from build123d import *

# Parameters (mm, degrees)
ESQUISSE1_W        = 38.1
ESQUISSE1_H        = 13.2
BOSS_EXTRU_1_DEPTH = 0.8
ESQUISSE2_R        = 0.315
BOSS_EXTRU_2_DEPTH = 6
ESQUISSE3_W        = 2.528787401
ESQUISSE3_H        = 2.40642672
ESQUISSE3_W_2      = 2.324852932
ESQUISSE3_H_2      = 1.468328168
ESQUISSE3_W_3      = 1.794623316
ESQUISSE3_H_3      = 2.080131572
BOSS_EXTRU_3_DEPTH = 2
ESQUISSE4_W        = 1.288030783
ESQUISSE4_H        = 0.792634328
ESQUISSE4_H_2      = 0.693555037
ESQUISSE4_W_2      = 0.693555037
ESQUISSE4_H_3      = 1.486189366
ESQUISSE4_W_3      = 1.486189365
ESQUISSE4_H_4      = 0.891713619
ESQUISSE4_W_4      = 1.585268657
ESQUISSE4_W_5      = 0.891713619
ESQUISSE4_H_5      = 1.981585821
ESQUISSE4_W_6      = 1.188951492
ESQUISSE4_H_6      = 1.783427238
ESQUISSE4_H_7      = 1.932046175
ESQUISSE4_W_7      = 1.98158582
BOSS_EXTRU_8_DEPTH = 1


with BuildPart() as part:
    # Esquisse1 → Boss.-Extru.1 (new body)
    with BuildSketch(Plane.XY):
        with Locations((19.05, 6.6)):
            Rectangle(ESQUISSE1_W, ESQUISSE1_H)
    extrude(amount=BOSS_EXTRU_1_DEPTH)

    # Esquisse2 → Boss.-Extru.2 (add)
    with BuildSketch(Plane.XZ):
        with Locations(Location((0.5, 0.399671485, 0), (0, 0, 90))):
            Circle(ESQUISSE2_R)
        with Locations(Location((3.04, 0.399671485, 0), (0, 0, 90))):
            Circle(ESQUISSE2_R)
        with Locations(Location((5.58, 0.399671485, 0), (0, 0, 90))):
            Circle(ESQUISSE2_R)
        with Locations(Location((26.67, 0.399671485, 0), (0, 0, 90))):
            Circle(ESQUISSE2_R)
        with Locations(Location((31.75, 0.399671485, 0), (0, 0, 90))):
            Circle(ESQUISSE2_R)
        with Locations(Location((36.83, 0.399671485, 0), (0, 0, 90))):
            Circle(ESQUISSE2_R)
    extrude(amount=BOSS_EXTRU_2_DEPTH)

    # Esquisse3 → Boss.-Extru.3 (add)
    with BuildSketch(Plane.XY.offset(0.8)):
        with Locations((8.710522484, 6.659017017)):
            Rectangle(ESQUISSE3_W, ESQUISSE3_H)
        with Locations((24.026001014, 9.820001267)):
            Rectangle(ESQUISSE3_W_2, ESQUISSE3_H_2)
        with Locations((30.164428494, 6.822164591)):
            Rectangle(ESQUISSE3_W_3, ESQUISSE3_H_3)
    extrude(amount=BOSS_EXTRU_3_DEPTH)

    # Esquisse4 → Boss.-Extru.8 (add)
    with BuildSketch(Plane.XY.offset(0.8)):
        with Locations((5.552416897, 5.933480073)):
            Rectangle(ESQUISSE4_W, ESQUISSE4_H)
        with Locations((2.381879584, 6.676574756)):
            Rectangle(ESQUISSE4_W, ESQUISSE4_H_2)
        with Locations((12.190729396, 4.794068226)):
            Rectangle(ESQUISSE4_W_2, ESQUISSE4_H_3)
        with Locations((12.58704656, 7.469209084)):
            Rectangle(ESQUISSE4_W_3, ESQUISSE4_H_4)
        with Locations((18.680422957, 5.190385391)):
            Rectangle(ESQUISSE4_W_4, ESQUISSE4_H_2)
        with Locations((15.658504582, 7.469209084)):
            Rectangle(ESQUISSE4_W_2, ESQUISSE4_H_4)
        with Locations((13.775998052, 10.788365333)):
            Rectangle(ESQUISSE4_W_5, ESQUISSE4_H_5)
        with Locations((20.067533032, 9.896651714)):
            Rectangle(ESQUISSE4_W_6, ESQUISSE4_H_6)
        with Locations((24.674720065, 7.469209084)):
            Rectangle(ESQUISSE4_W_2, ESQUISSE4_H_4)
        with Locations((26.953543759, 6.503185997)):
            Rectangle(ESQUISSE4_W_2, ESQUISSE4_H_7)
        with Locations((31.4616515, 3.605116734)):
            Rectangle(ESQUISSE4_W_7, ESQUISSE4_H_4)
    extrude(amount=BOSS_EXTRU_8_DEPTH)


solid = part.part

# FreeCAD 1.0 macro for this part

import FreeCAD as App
import Part
import Sketcher

V = App.Vector

doc = App.newDocument("Part")
body = doc.addObject("PartDesign::Body", "Body")

sketch1 = body.newObject("Sketcher::SketchObject", "Sketch")
sketch1.AttachmentSupport = (doc.getObject("XY_Plane"), [""])
sketch1.MapMode = "FlatFace"
sketch1.addGeometry([
    Part.LineSegment(V(0, 13.2, 0), V(0, 0, 0)),
    Part.LineSegment(V(0, 0, 0), V(38.1, 0, 0)),
    Part.LineSegment(V(38.1, 0, 0), V(38.1, 13.2, 0)),
    Part.LineSegment(V(38.1, 13.2, 0), V(0, 13.2, 0)),
], False)
sketch1.addConstraint([
    Sketcher.Constraint("Coincident", 0, 2, 1, 1),
    Sketcher.Constraint("Coincident", 1, 2, 2, 1),
    Sketcher.Constraint("Coincident", 2, 2, 3, 1),
    Sketcher.Constraint("Coincident", 3, 2, 0, 1),
    Sketcher.Constraint("Vertical", 0),
    Sketcher.Constraint("Horizontal", 1),
    Sketcher.Constraint("Vertical", 2),
    Sketcher.Constraint("Horizontal", 3),
    Sketcher.Constraint("Coincident", 0, 2, -1, 1),
    Sketcher.Constraint("DistanceX", 1, 1, 1, 2, 38.1),
    Sketcher.Constraint("DistanceY", 0, 2, 0, 1, 13.2),
])
pad1 = body.newObject("PartDesign::Pad", "Pad")
pad1.Profile = sketch1
pad1.Length = 0.8

sketch2 = body.newObject("Sketcher::SketchObject", "Sketch001")
sketch2.AttachmentSupport = (doc.getObject("XZ_Plane"), [""])
sketch2.MapMode = "FlatFace"
sketch2.addGeometry([
    Part.Circle(V(0.5, 0.399671, 0), V(0, 0, 1), 0.315),
    Part.Circle(V(3.04, 0.399671, 0), V(0, 0, 1), 0.315),
    Part.Circle(V(5.58, 0.399671, 0), V(0, 0, 1), 0.315),
    Part.Circle(V(26.67, 0.399671, 0), V(0, 0, 1), 0.315),
    Part.Circle(V(31.75, 0.399671, 0), V(0, 0, 1), 0.315),
    Part.Circle(V(36.83, 0.399671, 0), V(0, 0, 1), 0.315),
], False)
sketch2.addConstraint([
    Sketcher.Constraint("Equal", 0, 1),
    Sketcher.Constraint("Equal", 1, 2),
    Sketcher.Constraint("Equal", 2, 3),
    Sketcher.Constraint("Equal", 3, 4),
    Sketcher.Constraint("Equal", 4, 5),
    Sketcher.Constraint("Horizontal", 0, 3, 1, 3),
    Sketcher.Constraint("Horizontal", 1, 3, 2, 3),
    Sketcher.Constraint("Horizontal", 2, 3, 3, 3),
    Sketcher.Constraint("Horizontal", 3, 3, 4, 3),
    Sketcher.Constraint("Horizontal", 4, 3, 5, 3),
    Sketcher.Constraint("Diameter", 0, 0.63),
    Sketcher.Constraint("DistanceX", -1, 1, 0, 3, 0.5),
    Sketcher.Constraint("DistanceX", -1, 1, 1, 3, 3.04),
    Sketcher.Constraint("DistanceX", -1, 1, 2, 3, 5.58),
    Sketcher.Constraint("DistanceX", -1, 1, 3, 3, 26.67),
    Sketcher.Constraint("DistanceX", -1, 1, 4, 3, 31.75),
    Sketcher.Constraint("DistanceX", -1, 1, 5, 3, 36.83),
    Sketcher.Constraint("DistanceY", -1, 1, 0, 3, 0.399671),
])
pad2 = body.newObject("PartDesign::Pad", "Pad001")
pad2.Profile = sketch2
pad2.Length = 6

sketch3 = body.newObject("Sketcher::SketchObject", "Sketch002")
sketch3.AttachmentSupport = (doc.getObject("XY_Plane"), [""])
sketch3.MapMode = "FlatFace"
sketch3.AttachmentOffset = App.Placement(V(0, 0, 0.8), App.Rotation())
sketch3.addGeometry([
    Part.LineSegment(V(7.446129, 7.86223, 0), V(7.446129, 5.455804, 0)),
    Part.LineSegment(V(7.446129, 5.455804, 0), V(9.974916, 5.455804, 0)),
    Part.LineSegment(V(9.974916, 5.455804, 0), V(9.974916, 7.86223, 0)),
    Part.LineSegment(V(9.974916, 7.86223, 0), V(7.446129, 7.86223, 0)),
    Part.LineSegment(V(22.863575, 10.554165, 0), V(22.863575, 9.085837, 0)),
    Part.LineSegment(V(22.863575, 9.085837, 0), V(25.188427, 9.085837, 0)),
    Part.LineSegment(V(25.188427, 9.085837, 0), V(25.188427, 10.554165, 0)),
    Part.LineSegment(V(25.188427, 10.554165, 0), V(22.863575, 10.554165, 0)),
    Part.LineSegment(V(29.267117, 7.86223, 0), V(29.267117, 5.782099, 0)),
    Part.LineSegment(V(29.267117, 5.782099, 0), V(31.06174, 5.782099, 0)),
    Part.LineSegment(V(31.06174, 5.782099, 0), V(31.06174, 7.86223, 0)),
    Part.LineSegment(V(31.06174, 7.86223, 0), V(29.267117, 7.86223, 0)),
], False)
sketch3.addConstraint([
    Sketcher.Constraint("Coincident", 0, 2, 1, 1),
    Sketcher.Constraint("Coincident", 1, 2, 2, 1),
    Sketcher.Constraint("Coincident", 2, 2, 3, 1),
    Sketcher.Constraint("Coincident", 3, 2, 0, 1),
    Sketcher.Constraint("Coincident", 4, 2, 5, 1),
    Sketcher.Constraint("Coincident", 5, 2, 6, 1),
    Sketcher.Constraint("Coincident", 6, 2, 7, 1),
    Sketcher.Constraint("Coincident", 7, 2, 4, 1),
    Sketcher.Constraint("Coincident", 8, 2, 9, 1),
    Sketcher.Constraint("Coincident", 9, 2, 10, 1),
    Sketcher.Constraint("Coincident", 10, 2, 11, 1),
    Sketcher.Constraint("Coincident", 11, 2, 8, 1),
    Sketcher.Constraint("Vertical", 0),
    Sketcher.Constraint("Horizontal", 1),
    Sketcher.Constraint("Vertical", 2),
    Sketcher.Constraint("Horizontal", 3),
    Sketcher.Constraint("Vertical", 4),
    Sketcher.Constraint("Horizontal", 5),
    Sketcher.Constraint("Vertical", 6),
    Sketcher.Constraint("Horizontal", 7),
    Sketcher.Constraint("Vertical", 8),
    Sketcher.Constraint("Horizontal", 9),
    Sketcher.Constraint("Vertical", 10),
    Sketcher.Constraint("Horizontal", 11),
    Sketcher.Constraint("Horizontal", 3, 2, 10, 2),
    Sketcher.Constraint("DistanceY", 4, 2, 4, 1, 1.468328),
    Sketcher.Constraint("DistanceY", 8, 2, 8, 1, 2.080132),
    Sketcher.Constraint("DistanceY", -1, 1, 8, 2, 5.782099),
    Sketcher.Constraint("DistanceX", 3, 2, 5, 2, 17.742299),
    Sketcher.Constraint("DistanceX", 1, 2, 8, 2, 19.292201),
    Sketcher.Constraint("DistanceX", 1, 1, 1, 2, 2.528787),
    Sketcher.Constraint("DistanceX", 5, 1, 5, 2, 2.324853),
    Sketcher.Constraint("DistanceX", 9, 1, 9, 2, 1.794623),
    Sketcher.Constraint("DistanceY", 0, 2, 0, 1, 2.406427),
    Sketcher.Constraint("DistanceX", -1, 1, 0, 2, 7.446129),
    Sketcher.Constraint("DistanceY", 1, 2, 6, 2, 5.098362),
])
pad3 = body.newObject("PartDesign::Pad", "Pad002")
pad3.Profile = sketch3
pad3.Length = 2

sketch4 = body.newObject("Sketcher::SketchObject", "Sketch003")
sketch4.AttachmentSupport = (doc.getObject("XY_Plane"), [""])
sketch4.MapMode = "FlatFace"
sketch4.AttachmentOffset = App.Placement(V(0, 0, 0.8), App.Rotation())
sketch4.addGeometry([
    Part.LineSegment(V(4.908402, 6.329797, 0), V(4.908402, 5.537163, 0)),
    Part.LineSegment(V(4.908402, 5.537163, 0), V(6.196432, 5.537163, 0)),
    Part.LineSegment(V(6.196432, 5.537163, 0), V(6.196432, 6.329797, 0)),
    Part.LineSegment(V(6.196432, 6.329797, 0), V(4.908402, 6.329797, 0)),
    Part.LineSegment(V(1.737864, 7.023352, 0), V(1.737864, 6.329797, 0)),
    Part.LineSegment(V(1.737864, 6.329797, 0), V(3.025895, 6.329797, 0)),
    Part.LineSegment(V(3.025895, 6.329797, 0), V(3.025895, 7.023352, 0)),
    Part.LineSegment(V(3.025895, 7.023352, 0), V(1.737864, 7.023352, 0)),
    Part.LineSegment(V(11.843952, 5.537163, 0), V(11.843952, 4.050974, 0)),
    Part.LineSegment(V(11.843952, 4.050974, 0), V(12.537507, 4.050974, 0)),
    Part.LineSegment(V(12.537507, 4.050974, 0), V(12.537507, 5.537163, 0)),
    Part.LineSegment(V(12.537507, 5.537163, 0), V(11.843952, 5.537163, 0)),
    Part.LineSegment(V(11.843952, 7.915066, 0), V(11.843952, 7.023352, 0)),
    Part.LineSegment(V(11.843952, 7.023352, 0), V(13.330141, 7.023352, 0)),
    Part.LineSegment(V(13.330141, 7.023352, 0), V(13.330141, 7.915066, 0)),
    Part.LineSegment(V(13.330141, 7.915066, 0), V(11.843952, 7.915066, 0)),
    Part.LineSegment(V(17.887789, 5.537163, 0), V(17.887789, 4.843608, 0)),
    Part.LineSegment(V(17.887789, 4.843608, 0), V(19.473057, 4.843608, 0)),
    Part.LineSegment(V(19.473057, 4.843608, 0), V(19.473057, 5.537163, 0)),
    Part.LineSegment(V(19.473057, 5.537163, 0), V(17.887789, 5.537163, 0)),
    Part.LineSegment(V(15.311727, 7.915066, 0), V(15.311727, 7.023352, 0)),
    Part.LineSegment(V(15.311727, 7.023352, 0), V(16.005282, 7.023352, 0)),
    Part.LineSegment(V(16.005282, 7.023352, 0), V(16.005282, 7.915066, 0)),
    Part.LineSegment(V(16.005282, 7.915066, 0), V(15.311727, 7.915066, 0)),
    Part.LineSegment(V(13.330141, 11.779158, 0), V(13.330141, 9.797572, 0)),
    Part.LineSegment(V(13.330141, 9.797572, 0), V(14.221855, 9.797572, 0)),
    Part.LineSegment(V(14.221855, 9.797572, 0), V(14.221855, 11.779158, 0)),
    Part.LineSegment(V(14.221855, 11.779158, 0), V(13.330141, 11.779158, 0)),
    Part.LineSegment(V(19.473057, 10.788365, 0), V(19.473057, 9.004938, 0)),
    Part.LineSegment(V(19.473057, 9.004938, 0), V(20.662009, 9.004938, 0)),
    Part.LineSegment(V(20.662009, 9.004938, 0), V(20.662009, 10.788365, 0)),
    Part.LineSegment(V(20.662009, 10.788365, 0), V(19.473057, 10.788365, 0)),
    Part.LineSegment(V(24.327943, 7.915066, 0), V(24.327943, 7.023352, 0)),
    Part.LineSegment(V(24.327943, 7.023352, 0), V(25.021498, 7.023352, 0)),
    Part.LineSegment(V(25.021498, 7.023352, 0), V(25.021498, 7.915066, 0)),
    Part.LineSegment(V(25.021498, 7.915066, 0), V(24.327943, 7.915066, 0)),
    Part.LineSegment(V(26.606766, 7.469209, 0), V(26.606766, 5.537163, 0)),
    Part.LineSegment(V(26.606766, 5.537163, 0), V(27.300321, 5.537163, 0)),
    Part.LineSegment(V(27.300321, 5.537163, 0), V(27.300321, 7.469209, 0)),
    Part.LineSegment(V(27.300321, 7.469209, 0), V(26.606766, 7.469209, 0)),
    Part.LineSegment(V(30.470859, 4.050974, 0), V(30.470859, 3.15926, 0)),
    Part.LineSegment(V(30.470859, 3.15926, 0), V(32.452444, 3.15926, 0)),
    Part.LineSegment(V(32.452444, 3.15926, 0), V(32.452444, 4.050974, 0)),
    Part.LineSegment(V(32.452444, 4.050974, 0), V(30.470859, 4.050974, 0)),
], False)
sketch4.addConstraint([
    Sketcher.Constraint("Coincident", 0, 2, 1, 1),
    Sketcher.Constraint("Coincident", 1, 2, 2, 1),
    Sketcher.Constraint("Coincident", 2, 2, 3, 1),
    Sketcher.Constraint("Coincident", 3, 2, 0, 1),
    Sketcher.Constraint("Coincident", 4, 2, 5, 1),
    Sketcher.Constraint("Coincident", 5, 2, 6, 1),
    Sketcher.Constraint("Coincident", 6, 2, 7, 1),
    Sketcher.Constraint("Coincident", 7, 2, 4, 1),
    Sketcher.Constraint("Coincident", 8, 2, 9, 1),
    Sketcher.Constraint("Coincident", 9, 2, 10, 1),
    Sketcher.Constraint("Coincident", 10, 2, 11, 1),
    Sketcher.Constraint("Coincident", 11, 2, 8, 1),
    Sketcher.Constraint("Coincident", 12, 2, 13, 1),
    Sketcher.Constraint("Coincident", 13, 2, 14, 1),
    Sketcher.Constraint("Coincident", 14, 2, 15, 1),
    Sketcher.Constraint("Coincident", 15, 2, 12, 1),
    Sketcher.Constraint("Coincident", 16, 2, 17, 1),
    Sketcher.Constraint("Coincident", 17, 2, 18, 1),
    Sketcher.Constraint("Coincident", 18, 2, 19, 1),
    Sketcher.Constraint("Coincident", 19, 2, 16, 1),
    Sketcher.Constraint("Coincident", 20, 2, 21, 1),
    Sketcher.Constraint("Coincident", 21, 2, 22, 1),
    Sketcher.Constraint("Coincident", 22, 2, 23, 1),
    Sketcher.Constraint("Coincident", 23, 2, 20, 1),
    Sketcher.Constraint("Coincident", 24, 2, 25, 1),
    Sketcher.Constraint("Coincident", 25, 2, 26, 1),
    Sketcher.Constraint("Coincident", 26, 2, 27, 1),
    Sketcher.Constraint("Coincident", 27, 2, 24, 1),
    Sketcher.Constraint("Coincident", 28, 2, 29, 1),
    Sketcher.Constraint("Coincident", 29, 2, 30, 1),
    Sketcher.Constraint("Coincident", 30, 2, 31, 1),
    Sketcher.Constraint("Coincident", 31, 2, 28, 1),
    Sketcher.Constraint("Coincident", 32, 2, 33, 1),
    Sketcher.Constraint("Coincident", 33, 2, 34, 1),
    Sketcher.Constraint("Coincident", 34, 2, 35, 1),
    Sketcher.Constraint("Coincident", 35, 2, 32, 1),
    Sketcher.Constraint("Coincident", 36, 2, 37, 1),
    Sketcher.Constraint("Coincident", 37, 2, 38, 1),
    Sketcher.Constraint("Coincident", 38, 2, 39, 1),
    Sketcher.Constraint("Coincident", 39, 2, 36, 1),
    Sketcher.Constraint("Coincident", 40, 2, 41, 1),
    Sketcher.Constraint("Coincident", 41, 2, 42, 1),
    Sketcher.Constraint("Coincident", 42, 2, 43, 1),
    Sketcher.Constraint("Coincident", 43, 2, 40, 1),
    Sketcher.Constraint("Vertical", 0),
    Sketcher.Constraint("Horizontal", 1),
    Sketcher.Constraint("Vertical", 2),
    Sketcher.Constraint("Horizontal", 3),
    Sketcher.Constraint("Vertical", 4),
    Sketcher.Constraint("Horizontal", 5),
    Sketcher.Constraint("Vertical", 6),
    Sketcher.Constraint("Horizontal", 7),
    Sketcher.Constraint("Vertical", 8),
    Sketcher.Constraint("Horizontal", 9),
    Sketcher.Constraint("Vertical", 10),
    Sketcher.Constraint("Horizontal", 11),
    Sketcher.Constraint("Vertical", 12),
    Sketcher.Constraint("Horizontal", 13),
    Sketcher.Constraint("Vertical", 14),
    Sketcher.Constraint("Horizontal", 15),
    Sketcher.Constraint("Vertical", 16),
    Sketcher.Constraint("Horizontal", 17),
    Sketcher.Constraint("Vertical", 18),
    Sketcher.Constraint("Horizontal", 19),
    Sketcher.Constraint("Vertical", 20),
    Sketcher.Constraint("Horizontal", 21),
    Sketcher.Constraint("Vertical", 22),
    Sketcher.Constraint("Horizontal", 23),
    Sketcher.Constraint("Vertical", 24),
    Sketcher.Constraint("Horizontal", 25),
    Sketcher.Constraint("Vertical", 26),
    Sketcher.Constraint("Horizontal", 27),
    Sketcher.Constraint("Vertical", 28),
    Sketcher.Constraint("Horizontal", 29),
    Sketcher.Constraint("Vertical", 30),
    Sketcher.Constraint("Horizontal", 31),
    Sketcher.Constraint("Vertical", 32),
    Sketcher.Constraint("Horizontal", 33),
    Sketcher.Constraint("Vertical", 34),
    Sketcher.Constraint("Horizontal", 35),
    Sketcher.Constraint("Vertical", 36),
    Sketcher.Constraint("Horizontal", 37),
    Sketcher.Constraint("Vertical", 38),
    Sketcher.Constraint("Horizontal", 39),
    Sketcher.Constraint("Vertical", 40),
    Sketcher.Constraint("Horizontal", 41),
    Sketcher.Constraint("Vertical", 42),
    Sketcher.Constraint("Horizontal", 43),
    Sketcher.Constraint("Horizontal", 3, 2, 4, 2),
    Sketcher.Constraint("Horizontal", 1, 2, 10, 2),
    Sketcher.Constraint("Horizontal", 7, 2, 12, 2),
    Sketcher.Constraint("Horizontal", 11, 2, 18, 2),
    Sketcher.Constraint("Horizontal", 13, 2, 20, 2),
    Sketcher.Constraint("Horizontal", 15, 2, 22, 2),
    Sketcher.Constraint("Horizontal", 21, 2, 32, 2),
    Sketcher.Constraint("Horizontal", 23, 2, 34, 2),
    Sketcher.Constraint("Horizontal", 19, 2, 36, 2),
    Sketcher.Constraint("Horizontal", 9, 2, 42, 2),
    Sketcher.Constraint("Vertical", 11, 2, 12, 2),
    Sketcher.Constraint("Vertical", 14, 2, 24, 2),
    Sketcher.Constraint("Vertical", 18, 2, 28, 2),
    Sketcher.Constraint("Equal", 3, 5),
    Sketcher.Constraint("Equal", 11, 21),
    Sketcher.Constraint("Equal", 23, 33),
    Sketcher.Constraint("Equal", 35, 37),
    Sketcher.Constraint("Equal", 39, 4),
    Sketcher.Constraint("Equal", 15, 8),
    Sketcher.Constraint("Equal", 27, 12),
    Sketcher.Constraint("Equal", 6, 16),
    Sketcher.Constraint("Equal", 43, 24),
    Sketcher.Constraint("Equal", 34, 40),
    Sketcher.Constraint("DistanceX", 1, 1, 1, 2, 1.288031),
    Sketcher.Constraint("DistanceX", 13, 1, 13, 2, 1.486189),
    Sketcher.Constraint("DistanceX", 17, 1, 17, 2, 1.585269),
    Sketcher.Constraint("DistanceX", 29, 1, 29, 2, 1.188951),
    Sketcher.Constraint("DistanceX", -1, 1, 0, 2, 4.908402),
    Sketcher.Constraint("DistanceY", 22, 2, 30, 2, 2.873299),
    Sketcher.Constraint("DistanceX", 9, 1, 9, 2, 0.693555),
    Sketcher.Constraint("DistanceX", 25, 1, 25, 2, 0.891714),
    Sketcher.Constraint("DistanceX", 41, 1, 41, 2, 1.981586),
    Sketcher.Constraint("DistanceY", 0, 2, 0, 1, 0.792634),
    Sketcher.Constraint("DistanceY", 28, 2, 28, 1, 1.783427),
    Sketcher.Constraint("DistanceY", 36, 2, 36, 1, 1.932046),
    Sketcher.Constraint("DistanceX", -1, 1, 8, 2, 11.843952),
    Sketcher.Constraint("DistanceX", -1, 1, 16, 2, 17.887789),
    Sketcher.Constraint("DistanceY", -1, 1, 26, 2, 11.779158),
    Sketcher.Constraint("DistanceY", -1, 1, 28, 2, 9.004938),
    Sketcher.Constraint("DistanceX", -1, 1, 37, 2, 27.300321),
    Sketcher.Constraint("DistanceX", -1, 1, 40, 2, 30.470859),
    Sketcher.Constraint("DistanceX", 4, 2, 2, 2, 4.458568),
    Sketcher.Constraint("DistanceX", 20, 2, 19, 2, 2.576062),
    Sketcher.Constraint("DistanceX", 29, 2, 33, 2, 4.359489),
])
pad4 = body.newObject("PartDesign::Pad", "Pad003")
pad4.Profile = sketch4
pad4.Length = 1

doc.recompute()
